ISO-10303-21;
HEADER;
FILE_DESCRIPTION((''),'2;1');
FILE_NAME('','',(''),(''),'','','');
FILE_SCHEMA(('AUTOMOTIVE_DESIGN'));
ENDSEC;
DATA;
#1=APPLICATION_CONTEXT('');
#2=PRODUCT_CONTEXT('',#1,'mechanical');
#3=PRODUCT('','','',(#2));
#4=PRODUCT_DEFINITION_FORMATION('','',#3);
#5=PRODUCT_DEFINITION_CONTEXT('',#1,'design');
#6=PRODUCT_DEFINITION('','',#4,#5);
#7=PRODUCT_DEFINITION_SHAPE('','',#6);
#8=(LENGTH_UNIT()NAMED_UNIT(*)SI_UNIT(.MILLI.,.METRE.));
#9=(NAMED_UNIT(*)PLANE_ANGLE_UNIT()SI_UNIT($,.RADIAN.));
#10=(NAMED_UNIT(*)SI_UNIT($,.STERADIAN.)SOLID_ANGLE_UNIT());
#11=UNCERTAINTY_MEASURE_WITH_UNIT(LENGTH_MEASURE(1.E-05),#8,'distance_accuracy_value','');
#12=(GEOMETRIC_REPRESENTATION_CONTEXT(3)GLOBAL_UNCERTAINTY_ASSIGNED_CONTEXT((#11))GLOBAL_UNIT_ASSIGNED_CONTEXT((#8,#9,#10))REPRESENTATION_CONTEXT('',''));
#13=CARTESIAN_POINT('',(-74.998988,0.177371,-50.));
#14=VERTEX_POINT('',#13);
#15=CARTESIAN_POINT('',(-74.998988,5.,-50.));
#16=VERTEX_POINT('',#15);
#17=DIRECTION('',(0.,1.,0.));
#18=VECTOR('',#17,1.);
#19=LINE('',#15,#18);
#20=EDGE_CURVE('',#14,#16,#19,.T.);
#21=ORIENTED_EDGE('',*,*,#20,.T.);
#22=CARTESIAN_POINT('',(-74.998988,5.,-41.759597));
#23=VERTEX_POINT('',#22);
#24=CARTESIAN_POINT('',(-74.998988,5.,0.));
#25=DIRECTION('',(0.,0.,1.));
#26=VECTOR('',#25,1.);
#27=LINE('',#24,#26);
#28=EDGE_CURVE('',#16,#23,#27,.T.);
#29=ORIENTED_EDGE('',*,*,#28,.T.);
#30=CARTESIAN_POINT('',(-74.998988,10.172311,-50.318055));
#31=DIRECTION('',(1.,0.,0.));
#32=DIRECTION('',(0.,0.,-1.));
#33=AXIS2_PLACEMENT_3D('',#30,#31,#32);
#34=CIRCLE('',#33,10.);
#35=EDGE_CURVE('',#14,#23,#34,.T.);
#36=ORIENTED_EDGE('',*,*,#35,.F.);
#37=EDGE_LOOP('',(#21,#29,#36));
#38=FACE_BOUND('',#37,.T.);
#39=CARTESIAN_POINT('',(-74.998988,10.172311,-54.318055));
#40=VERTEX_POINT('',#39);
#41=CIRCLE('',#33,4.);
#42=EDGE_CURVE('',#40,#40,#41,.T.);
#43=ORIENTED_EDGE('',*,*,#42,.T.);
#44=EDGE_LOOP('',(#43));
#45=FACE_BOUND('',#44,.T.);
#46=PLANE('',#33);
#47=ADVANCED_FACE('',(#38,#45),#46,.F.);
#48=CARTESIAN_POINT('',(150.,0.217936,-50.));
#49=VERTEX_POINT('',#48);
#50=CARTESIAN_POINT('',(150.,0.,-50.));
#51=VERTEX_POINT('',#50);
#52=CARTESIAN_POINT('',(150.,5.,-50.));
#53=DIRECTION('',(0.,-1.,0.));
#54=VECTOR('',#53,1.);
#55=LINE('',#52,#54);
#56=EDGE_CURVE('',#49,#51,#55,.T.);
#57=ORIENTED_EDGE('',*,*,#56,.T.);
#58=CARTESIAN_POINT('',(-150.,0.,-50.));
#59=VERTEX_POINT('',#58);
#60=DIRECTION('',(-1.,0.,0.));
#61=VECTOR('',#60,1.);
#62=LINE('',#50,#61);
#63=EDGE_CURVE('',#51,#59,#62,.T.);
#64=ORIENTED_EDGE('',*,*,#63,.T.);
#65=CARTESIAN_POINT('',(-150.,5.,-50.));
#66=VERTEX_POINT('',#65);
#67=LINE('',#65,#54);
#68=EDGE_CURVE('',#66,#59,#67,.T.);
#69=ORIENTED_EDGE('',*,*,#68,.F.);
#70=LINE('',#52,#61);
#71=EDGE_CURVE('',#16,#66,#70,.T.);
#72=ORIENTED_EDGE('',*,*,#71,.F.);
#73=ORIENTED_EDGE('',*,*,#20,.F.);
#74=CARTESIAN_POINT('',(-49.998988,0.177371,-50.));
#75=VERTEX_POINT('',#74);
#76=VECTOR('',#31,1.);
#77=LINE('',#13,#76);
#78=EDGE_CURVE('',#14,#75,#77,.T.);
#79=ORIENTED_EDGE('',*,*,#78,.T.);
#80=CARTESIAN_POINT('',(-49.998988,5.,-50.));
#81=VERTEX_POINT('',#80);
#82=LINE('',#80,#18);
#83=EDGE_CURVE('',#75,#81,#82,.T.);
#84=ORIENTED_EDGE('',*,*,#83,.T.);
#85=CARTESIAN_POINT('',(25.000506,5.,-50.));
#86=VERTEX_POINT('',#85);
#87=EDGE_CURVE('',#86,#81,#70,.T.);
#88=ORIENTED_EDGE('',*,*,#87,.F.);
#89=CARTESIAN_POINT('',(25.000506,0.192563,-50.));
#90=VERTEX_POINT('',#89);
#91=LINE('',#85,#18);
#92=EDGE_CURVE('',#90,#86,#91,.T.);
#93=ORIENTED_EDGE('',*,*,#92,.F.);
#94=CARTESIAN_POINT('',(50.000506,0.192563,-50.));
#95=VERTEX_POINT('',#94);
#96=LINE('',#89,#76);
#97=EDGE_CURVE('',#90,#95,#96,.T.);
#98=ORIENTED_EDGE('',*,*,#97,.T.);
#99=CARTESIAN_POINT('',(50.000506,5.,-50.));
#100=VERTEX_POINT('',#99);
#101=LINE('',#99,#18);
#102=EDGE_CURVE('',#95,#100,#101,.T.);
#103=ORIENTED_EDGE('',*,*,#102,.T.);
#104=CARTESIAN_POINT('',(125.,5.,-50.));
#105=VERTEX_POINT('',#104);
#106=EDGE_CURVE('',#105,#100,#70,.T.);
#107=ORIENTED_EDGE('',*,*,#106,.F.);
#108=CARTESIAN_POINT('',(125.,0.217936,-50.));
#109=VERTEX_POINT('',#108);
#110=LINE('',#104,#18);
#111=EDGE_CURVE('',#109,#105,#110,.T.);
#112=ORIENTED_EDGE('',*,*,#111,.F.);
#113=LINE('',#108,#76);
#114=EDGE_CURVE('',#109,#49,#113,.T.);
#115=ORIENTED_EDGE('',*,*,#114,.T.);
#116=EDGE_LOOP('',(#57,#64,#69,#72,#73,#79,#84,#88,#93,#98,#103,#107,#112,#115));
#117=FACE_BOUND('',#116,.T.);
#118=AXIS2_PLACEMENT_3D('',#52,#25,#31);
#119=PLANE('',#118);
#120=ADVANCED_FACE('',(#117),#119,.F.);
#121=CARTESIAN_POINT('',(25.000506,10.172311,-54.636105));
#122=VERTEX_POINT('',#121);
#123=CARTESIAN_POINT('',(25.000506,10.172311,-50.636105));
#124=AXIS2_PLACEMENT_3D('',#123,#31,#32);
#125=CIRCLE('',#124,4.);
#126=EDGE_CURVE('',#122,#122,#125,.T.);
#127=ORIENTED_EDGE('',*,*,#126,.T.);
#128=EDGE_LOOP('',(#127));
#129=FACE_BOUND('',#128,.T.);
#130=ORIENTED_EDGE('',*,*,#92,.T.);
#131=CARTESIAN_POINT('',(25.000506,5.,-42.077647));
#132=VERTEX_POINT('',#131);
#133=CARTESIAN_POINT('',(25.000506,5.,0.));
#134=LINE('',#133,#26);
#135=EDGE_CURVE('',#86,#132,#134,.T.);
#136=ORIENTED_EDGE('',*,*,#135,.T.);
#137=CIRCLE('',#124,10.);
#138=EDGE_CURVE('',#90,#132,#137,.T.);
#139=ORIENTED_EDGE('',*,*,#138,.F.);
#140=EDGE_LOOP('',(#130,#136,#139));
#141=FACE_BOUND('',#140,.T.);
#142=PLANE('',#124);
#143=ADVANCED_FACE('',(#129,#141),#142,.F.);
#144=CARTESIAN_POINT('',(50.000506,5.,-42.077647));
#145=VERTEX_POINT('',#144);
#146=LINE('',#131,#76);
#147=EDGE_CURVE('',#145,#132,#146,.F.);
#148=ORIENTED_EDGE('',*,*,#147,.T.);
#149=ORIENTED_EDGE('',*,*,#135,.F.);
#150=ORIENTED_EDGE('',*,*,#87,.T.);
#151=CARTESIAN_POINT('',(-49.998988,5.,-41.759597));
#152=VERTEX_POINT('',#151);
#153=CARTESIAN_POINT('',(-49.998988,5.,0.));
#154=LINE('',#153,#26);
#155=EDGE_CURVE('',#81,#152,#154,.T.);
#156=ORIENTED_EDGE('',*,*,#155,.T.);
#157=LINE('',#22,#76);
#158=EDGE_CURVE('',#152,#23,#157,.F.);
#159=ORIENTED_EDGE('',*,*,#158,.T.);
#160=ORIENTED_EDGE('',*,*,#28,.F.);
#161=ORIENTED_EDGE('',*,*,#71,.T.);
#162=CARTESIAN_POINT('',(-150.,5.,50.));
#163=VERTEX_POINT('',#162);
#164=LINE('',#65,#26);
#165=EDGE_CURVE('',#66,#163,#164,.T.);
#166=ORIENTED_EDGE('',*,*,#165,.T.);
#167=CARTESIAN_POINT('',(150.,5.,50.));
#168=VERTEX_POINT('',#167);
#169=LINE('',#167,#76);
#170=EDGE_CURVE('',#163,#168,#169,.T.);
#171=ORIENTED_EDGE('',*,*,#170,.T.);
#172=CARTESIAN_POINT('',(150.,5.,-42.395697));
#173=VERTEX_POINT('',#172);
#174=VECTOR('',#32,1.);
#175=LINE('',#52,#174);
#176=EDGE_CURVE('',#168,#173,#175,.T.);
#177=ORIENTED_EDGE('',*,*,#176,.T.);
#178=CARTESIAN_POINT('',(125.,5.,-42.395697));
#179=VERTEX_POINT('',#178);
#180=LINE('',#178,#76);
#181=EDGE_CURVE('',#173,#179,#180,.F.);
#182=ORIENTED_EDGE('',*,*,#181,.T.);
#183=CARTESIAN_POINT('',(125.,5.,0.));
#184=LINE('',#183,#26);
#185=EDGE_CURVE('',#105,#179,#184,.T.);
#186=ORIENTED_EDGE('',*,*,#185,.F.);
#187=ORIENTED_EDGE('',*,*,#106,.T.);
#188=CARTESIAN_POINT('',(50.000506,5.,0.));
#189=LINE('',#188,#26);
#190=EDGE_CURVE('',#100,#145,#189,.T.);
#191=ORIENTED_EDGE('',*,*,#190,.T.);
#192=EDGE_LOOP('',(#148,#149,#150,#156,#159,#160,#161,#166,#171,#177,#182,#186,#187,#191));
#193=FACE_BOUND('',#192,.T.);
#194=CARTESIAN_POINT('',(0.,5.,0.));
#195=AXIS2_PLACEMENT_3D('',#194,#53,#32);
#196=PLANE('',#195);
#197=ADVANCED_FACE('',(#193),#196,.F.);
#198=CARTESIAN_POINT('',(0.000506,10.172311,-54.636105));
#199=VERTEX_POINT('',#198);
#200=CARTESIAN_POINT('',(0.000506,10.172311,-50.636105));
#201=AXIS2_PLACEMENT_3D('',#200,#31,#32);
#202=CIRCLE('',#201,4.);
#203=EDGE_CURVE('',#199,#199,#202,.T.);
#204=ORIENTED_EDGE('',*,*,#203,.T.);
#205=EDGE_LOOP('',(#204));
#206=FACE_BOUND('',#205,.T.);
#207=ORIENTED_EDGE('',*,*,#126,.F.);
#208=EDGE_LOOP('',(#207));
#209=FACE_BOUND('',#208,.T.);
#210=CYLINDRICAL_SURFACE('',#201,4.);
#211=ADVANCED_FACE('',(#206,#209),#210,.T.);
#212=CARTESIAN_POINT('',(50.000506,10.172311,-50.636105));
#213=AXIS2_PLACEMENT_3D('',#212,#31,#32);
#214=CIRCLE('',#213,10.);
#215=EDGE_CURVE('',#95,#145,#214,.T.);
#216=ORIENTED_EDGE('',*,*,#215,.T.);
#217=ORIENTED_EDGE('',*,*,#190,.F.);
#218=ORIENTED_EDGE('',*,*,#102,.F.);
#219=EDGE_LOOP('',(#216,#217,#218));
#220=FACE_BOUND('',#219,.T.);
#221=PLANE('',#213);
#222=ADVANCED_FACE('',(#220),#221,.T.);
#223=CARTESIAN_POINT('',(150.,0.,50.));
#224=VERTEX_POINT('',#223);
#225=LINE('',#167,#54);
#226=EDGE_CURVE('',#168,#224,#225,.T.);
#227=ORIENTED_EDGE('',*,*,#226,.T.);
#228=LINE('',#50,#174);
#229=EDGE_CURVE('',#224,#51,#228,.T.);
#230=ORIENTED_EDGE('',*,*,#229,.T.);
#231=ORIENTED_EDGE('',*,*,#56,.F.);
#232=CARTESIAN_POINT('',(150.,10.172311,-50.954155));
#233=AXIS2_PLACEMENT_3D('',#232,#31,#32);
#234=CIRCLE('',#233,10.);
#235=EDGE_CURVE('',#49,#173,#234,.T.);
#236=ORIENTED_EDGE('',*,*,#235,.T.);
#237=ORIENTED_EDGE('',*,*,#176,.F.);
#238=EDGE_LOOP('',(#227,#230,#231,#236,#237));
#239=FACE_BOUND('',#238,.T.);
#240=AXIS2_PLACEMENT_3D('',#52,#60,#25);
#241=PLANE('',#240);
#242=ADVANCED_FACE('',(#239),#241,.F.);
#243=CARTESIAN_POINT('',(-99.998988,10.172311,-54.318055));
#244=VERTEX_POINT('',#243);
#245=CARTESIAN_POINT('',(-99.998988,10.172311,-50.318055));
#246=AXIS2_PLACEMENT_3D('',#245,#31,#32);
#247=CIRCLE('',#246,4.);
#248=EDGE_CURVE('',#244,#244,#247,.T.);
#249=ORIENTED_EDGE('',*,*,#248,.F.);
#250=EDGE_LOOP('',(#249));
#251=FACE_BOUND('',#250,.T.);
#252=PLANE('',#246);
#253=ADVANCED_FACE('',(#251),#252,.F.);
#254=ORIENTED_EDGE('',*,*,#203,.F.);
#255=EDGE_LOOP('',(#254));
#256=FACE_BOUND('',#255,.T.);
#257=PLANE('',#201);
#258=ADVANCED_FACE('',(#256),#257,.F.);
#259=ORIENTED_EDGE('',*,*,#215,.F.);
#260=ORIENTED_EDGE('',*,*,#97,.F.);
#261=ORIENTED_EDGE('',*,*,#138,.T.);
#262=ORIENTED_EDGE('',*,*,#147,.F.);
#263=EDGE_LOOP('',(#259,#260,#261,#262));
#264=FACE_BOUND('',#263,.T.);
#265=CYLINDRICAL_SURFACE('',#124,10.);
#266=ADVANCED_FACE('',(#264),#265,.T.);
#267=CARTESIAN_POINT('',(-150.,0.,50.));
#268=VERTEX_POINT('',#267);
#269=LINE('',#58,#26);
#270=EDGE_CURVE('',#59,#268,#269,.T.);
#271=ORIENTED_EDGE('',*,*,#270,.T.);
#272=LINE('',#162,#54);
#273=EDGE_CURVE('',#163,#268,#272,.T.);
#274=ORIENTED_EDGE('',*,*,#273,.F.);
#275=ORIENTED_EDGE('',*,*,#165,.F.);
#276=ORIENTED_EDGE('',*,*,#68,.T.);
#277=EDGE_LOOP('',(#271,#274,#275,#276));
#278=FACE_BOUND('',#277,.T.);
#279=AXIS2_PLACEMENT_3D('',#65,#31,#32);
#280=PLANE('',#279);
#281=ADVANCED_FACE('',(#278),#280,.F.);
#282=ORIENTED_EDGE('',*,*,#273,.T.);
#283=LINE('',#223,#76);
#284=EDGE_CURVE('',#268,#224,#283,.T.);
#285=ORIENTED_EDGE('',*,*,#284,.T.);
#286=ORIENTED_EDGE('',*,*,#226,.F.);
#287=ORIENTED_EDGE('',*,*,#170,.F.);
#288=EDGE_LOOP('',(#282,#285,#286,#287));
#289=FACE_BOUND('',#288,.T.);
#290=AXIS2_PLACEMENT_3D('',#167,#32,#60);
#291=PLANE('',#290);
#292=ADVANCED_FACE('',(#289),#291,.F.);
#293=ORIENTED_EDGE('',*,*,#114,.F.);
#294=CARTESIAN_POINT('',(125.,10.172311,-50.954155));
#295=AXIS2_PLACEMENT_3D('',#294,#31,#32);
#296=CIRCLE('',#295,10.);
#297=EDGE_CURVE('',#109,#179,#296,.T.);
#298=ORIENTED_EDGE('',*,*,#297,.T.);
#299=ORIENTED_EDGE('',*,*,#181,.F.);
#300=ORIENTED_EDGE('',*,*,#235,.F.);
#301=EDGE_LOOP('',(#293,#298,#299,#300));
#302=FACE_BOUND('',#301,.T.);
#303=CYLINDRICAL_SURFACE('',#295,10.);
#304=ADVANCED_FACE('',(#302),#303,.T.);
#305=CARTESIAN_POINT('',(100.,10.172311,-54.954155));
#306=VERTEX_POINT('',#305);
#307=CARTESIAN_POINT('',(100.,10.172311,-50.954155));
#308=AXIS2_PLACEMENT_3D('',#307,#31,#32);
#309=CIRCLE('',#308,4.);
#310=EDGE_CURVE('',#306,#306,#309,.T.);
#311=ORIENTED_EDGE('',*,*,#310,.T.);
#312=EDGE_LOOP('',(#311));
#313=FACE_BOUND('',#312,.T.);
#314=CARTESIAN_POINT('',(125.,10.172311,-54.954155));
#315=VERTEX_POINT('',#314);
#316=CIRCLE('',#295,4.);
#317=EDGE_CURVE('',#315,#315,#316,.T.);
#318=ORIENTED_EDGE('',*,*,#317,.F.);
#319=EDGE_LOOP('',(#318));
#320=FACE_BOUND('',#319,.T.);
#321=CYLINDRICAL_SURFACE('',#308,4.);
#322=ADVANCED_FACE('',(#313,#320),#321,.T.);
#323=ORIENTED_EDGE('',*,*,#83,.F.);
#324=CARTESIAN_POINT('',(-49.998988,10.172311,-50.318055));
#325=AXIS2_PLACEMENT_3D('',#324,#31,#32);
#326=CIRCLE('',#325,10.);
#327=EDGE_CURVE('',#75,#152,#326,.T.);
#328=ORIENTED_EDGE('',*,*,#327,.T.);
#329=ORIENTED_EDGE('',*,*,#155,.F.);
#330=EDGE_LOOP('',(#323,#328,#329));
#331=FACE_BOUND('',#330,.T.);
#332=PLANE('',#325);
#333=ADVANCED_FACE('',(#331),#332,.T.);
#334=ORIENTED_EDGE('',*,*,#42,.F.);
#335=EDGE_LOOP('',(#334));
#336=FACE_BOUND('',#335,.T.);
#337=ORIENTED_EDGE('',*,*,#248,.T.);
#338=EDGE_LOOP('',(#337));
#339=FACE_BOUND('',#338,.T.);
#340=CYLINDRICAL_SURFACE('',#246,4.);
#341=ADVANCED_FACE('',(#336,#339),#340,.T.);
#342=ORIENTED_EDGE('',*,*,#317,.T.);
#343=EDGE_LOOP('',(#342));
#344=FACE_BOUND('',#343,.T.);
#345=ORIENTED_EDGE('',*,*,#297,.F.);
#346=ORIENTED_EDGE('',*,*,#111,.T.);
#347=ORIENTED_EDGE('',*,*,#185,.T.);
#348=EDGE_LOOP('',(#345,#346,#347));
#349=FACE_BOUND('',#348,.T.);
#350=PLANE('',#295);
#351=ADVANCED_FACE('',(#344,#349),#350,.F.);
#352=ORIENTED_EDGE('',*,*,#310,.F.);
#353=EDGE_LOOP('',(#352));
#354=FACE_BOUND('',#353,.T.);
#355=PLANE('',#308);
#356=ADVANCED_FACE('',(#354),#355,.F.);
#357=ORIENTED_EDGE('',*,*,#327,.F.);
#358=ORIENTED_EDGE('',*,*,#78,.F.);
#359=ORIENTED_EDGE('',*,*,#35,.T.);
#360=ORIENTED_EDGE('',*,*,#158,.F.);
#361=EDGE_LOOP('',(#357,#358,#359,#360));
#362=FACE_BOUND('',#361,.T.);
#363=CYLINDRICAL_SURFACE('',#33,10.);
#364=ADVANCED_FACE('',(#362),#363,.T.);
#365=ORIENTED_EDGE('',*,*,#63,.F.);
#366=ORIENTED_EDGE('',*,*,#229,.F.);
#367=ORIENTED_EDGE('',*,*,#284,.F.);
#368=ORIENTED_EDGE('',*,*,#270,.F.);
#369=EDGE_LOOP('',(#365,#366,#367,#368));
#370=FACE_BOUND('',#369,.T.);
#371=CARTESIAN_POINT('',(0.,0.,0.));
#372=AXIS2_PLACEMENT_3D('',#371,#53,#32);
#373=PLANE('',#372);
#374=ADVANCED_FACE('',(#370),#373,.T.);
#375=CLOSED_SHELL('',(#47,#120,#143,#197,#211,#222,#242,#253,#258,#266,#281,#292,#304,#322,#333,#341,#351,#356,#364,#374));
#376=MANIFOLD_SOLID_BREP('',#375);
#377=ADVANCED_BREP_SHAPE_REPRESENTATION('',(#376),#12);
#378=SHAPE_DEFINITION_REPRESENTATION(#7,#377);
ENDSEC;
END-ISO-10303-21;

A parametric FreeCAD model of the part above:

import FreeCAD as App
import Part
import Sketcher
Q = App.Units.Quantity


def add_polygon(sketch, points):
    """Adds a closed chain of lines whose ends are joined by coincident constraints."""
    first, n = sketch.GeometryCount, len(points)
    for a, b in zip(points, points[1:] + points[:1]):
        sketch.addGeometry(Part.LineSegment(App.Vector(*a, 0), App.Vector(*b, 0)), False)
    for i in range(n):
        sketch.addConstraint(Sketcher.Constraint("Coincident", first + i, 2, first + (i + 1) % n, 1))

doc = App.newDocument("Part")
body = doc.addObject("PartDesign::Body", "Body")

# Sketch on XZ plane
sketch1 = body.newObject("Sketcher::SketchObject", "Sketch")
sketch1.AttachmentSupport = (doc.getObject("XZ_Plane"), [""])
sketch1.MapMode = "FlatFace"
add_polygon(sketch1, [(-150, -50), (-150, 50), (150, 50), (150, -50)])  # lines 0-3
sketch1.addConstraint(Sketcher.Constraint("Vertical", 0))
sketch1.addConstraint(Sketcher.Constraint("Horizontal", 1))
sketch1.addConstraint(Sketcher.Constraint("Vertical", 2))
sketch1.addConstraint(Sketcher.Constraint("Horizontal", 3))
sketch1.addConstraint(Sketcher.Constraint("Symmetric", 0, 2, 2, 2, -1, 1))
sketch1.addConstraint(Sketcher.Constraint("DistanceX", 1, 1, 1, 2, Q("300 mm")))
sketch1.addConstraint(Sketcher.Constraint("DistanceY", 0, 1, 0, 2, Q("100 mm")))
pad1 = body.newObject("PartDesign::Pad", "Pad")
pad1.Profile = sketch1
pad1.Length = 5
pad1.Reversed = True

# Sketch on YZ plane
sketch2 = body.newObject("Sketcher::SketchObject", "Sketch001")
sketch2.AttachmentSupport = (doc.getObject("YZ_Plane"), [""])
sketch2.MapMode = "FlatFace"
sketch2.AttachmentOffset = App.Placement(App.Vector(0, 0, 150), App.Rotation())
sketch2.addGeometry(Part.Circle(App.Vector(10, -51, 0), App.Vector(0, 0, 1), 10), False)
sketch2.addConstraint(Sketcher.Constraint("Diameter", 0, Q("20 mm")))
sketch2.addConstraint(Sketcher.Constraint("DistanceX", -1, 1, 0, 3, Q("10.172311 mm")))
sketch2.addConstraint(Sketcher.Constraint("DistanceY", 0, 3, -1, 1, Q("50.954155 mm")))
pad2 = body.newObject("PartDesign::Pad", "Pad001")
pad2.Profile = sketch2
pad2.Length = 25
pad2.Reversed = True

# Sketch on YZ plane
sketch3 = body.newObject("Sketcher::SketchObject", "Sketch002")
sketch3.AttachmentSupport = (doc.getObject("YZ_Plane"), [""])
sketch3.MapMode = "FlatFace"
sketch3.AttachmentOffset = App.Placement(App.Vector(0, 0, 150), App.Rotation())
sketch3.addGeometry(Part.Circle(App.Vector(10.2, -51, 0), App.Vector(0, 0, 1), 4), False)
sketch3.addConstraint(Sketcher.Constraint("Diameter", 0, Q("8 mm")))
sketch3.addConstraint(Sketcher.Constraint("DistanceX", -1, 1, 0, 3, Q("10.172311 mm")))
sketch3.addConstraint(Sketcher.Constraint("DistanceY", 0, 3, -1, 1, Q("50.954155 mm")))
pad3 = body.newObject("PartDesign::Pad", "Pad002")
pad3.Profile = sketch3
pad3.Length = 50
pad3.Reversed = True
doc.recompute()

datumline = body.newObject("PartDesign::Line", "DatumLine")
datumline.Placement = App.Placement(App.Vector(0, 0, 0), App.Rotation(App.Vector(0, 0, 1), App.Vector(-0.999994942, 0, 0.0031805)))
linearpattern = body.newObject("PartDesign::LinearPattern", "LinearPattern")
linearpattern.Originals = [pad2, pad3]
linearpattern.Direction = (datumline, [""])
linearpattern.Mode = "offset"
linearpattern.Offset = 100
linearpattern.Occurrences = 3
body.Tip = linearpattern

doc.recompute()
